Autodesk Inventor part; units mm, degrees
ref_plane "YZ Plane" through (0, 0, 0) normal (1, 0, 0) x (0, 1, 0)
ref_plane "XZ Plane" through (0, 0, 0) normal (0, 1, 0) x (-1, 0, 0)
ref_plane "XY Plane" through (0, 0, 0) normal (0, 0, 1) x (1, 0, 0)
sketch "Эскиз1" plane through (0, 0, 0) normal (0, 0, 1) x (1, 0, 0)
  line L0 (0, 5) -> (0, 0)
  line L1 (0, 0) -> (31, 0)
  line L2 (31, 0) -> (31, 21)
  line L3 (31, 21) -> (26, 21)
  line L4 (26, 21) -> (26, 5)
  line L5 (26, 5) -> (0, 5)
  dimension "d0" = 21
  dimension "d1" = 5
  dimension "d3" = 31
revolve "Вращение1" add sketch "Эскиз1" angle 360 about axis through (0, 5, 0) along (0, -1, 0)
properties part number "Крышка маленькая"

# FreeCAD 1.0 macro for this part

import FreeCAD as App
import Part
import Sketcher
from FreeCAD import Vector
Q = App.Units.Quantity


def add_polygon(sketch, points):
    """Adds a closed chain of lines whose ends are joined by coincident constraints."""
    first, n = sketch.GeometryCount, len(points)
    for a, b in zip(points, points[1:] + points[:1]):
        sketch.addGeometry(Part.LineSegment(App.Vector(*a, 0), App.Vector(*b, 0)), False)
    for i in range(n):
        sketch.addConstraint(Sketcher.Constraint("Coincident", first + i, 2, first + (i + 1) % n, 1))

doc = App.newDocument("Part")
body = doc.addObject("PartDesign::Body", "Body")

sketch1 = body.newObject("Sketcher::SketchObject", "Sketch")
sketch1.AttachmentSupport = (doc.getObject("XY_Plane"), [""])
sketch1.MapMode = "FlatFace"
add_polygon(sketch1, [(26, 5), (0, 5), (0, 0), (31, 0), (31, 21), (26, 21)])
sketch1.addConstraint([
    Sketcher.Constraint("Horizontal", 0),
    Sketcher.Constraint("Vertical", 1),
    Sketcher.Constraint("Horizontal", 2),
    Sketcher.Constraint("Vertical", 3),
    Sketcher.Constraint("Horizontal", 4),
    Sketcher.Constraint("Vertical", 5),
    Sketcher.Constraint("Coincident", 1, 2, -1, 1),
    Sketcher.Constraint("Equal", 4, 1),
    Sketcher.Constraint("DistanceX", 2, 1, 2, 2, Q("31 mm")),
    Sketcher.Constraint("DistanceX", 4, 2, 4, 1, Q("5 mm")),
    Sketcher.Constraint("DistanceY", 3, 1, 3, 2, Q("21 mm")),
])
revolution = body.newObject("PartDesign::Revolution", "Revolution")
revolution.Profile = sketch1
revolution.ReferenceAxis = (sketch1, ["V_Axis"])
revolution.Angle = 360

doc.recompute()
